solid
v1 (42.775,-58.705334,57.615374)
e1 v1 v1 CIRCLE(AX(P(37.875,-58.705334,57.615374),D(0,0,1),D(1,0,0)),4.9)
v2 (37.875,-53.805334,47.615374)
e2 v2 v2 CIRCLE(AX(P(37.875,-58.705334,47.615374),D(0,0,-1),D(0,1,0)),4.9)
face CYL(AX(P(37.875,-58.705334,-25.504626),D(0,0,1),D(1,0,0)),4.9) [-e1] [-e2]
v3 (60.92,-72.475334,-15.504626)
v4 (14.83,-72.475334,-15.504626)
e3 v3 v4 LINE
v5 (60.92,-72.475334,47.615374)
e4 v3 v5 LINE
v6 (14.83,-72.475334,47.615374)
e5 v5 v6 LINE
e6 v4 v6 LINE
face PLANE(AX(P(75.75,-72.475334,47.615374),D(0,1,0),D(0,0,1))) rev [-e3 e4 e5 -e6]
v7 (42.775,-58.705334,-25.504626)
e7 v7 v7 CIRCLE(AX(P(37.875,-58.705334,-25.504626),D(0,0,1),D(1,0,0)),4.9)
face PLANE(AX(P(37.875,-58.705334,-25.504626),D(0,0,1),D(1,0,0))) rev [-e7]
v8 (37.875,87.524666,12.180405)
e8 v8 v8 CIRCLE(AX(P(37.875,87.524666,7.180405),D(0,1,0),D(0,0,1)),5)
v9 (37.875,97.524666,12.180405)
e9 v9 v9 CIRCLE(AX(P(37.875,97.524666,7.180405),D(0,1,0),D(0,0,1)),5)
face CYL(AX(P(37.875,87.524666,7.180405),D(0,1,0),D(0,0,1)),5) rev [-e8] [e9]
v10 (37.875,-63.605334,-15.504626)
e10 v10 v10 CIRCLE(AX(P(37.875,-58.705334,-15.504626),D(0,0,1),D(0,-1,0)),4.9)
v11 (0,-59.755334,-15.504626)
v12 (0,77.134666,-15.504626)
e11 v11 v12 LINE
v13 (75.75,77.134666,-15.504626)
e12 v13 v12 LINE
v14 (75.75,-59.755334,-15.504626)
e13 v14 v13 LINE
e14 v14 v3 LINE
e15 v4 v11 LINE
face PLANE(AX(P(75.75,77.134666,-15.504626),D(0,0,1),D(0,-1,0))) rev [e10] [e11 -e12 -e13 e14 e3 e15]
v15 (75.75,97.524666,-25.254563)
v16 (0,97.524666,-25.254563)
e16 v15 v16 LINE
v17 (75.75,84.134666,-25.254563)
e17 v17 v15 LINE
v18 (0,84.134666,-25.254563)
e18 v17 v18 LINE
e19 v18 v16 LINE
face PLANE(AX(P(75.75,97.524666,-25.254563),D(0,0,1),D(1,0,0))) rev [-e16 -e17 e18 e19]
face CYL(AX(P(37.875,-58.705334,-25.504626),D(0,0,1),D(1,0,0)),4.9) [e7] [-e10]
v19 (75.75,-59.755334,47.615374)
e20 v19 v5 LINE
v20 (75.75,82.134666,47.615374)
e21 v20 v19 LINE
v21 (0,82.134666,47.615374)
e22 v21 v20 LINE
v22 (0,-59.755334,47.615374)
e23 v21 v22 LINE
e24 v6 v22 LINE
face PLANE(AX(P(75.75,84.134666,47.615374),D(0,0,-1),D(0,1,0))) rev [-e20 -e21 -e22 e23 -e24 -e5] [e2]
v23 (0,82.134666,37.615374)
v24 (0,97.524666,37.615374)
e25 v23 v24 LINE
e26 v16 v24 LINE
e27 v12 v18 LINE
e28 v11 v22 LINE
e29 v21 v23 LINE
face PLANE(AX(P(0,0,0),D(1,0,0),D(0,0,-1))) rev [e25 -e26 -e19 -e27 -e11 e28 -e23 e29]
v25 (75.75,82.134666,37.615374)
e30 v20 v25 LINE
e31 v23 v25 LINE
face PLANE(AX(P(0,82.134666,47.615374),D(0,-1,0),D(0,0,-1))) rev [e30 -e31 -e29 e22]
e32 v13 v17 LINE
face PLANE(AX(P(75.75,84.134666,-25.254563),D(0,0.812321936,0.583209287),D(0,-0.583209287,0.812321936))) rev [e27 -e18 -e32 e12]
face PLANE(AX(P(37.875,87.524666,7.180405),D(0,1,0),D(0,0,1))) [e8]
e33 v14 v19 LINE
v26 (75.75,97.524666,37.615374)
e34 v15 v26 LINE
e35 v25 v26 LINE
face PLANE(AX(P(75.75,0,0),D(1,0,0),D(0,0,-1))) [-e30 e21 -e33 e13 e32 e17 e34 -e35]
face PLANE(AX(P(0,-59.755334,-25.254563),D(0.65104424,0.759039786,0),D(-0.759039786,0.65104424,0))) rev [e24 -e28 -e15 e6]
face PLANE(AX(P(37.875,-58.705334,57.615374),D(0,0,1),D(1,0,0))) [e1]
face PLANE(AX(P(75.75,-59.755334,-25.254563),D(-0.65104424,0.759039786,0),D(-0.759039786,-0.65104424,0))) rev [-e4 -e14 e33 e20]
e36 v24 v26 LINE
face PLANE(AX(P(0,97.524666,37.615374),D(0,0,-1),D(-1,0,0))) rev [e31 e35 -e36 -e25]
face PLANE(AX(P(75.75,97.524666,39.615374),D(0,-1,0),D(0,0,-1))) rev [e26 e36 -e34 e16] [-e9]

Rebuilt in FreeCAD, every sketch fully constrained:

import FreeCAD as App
import Part
import Sketcher

V = App.Vector


def add_polygon(sketch, points):
    """Adds a closed chain of lines whose ends are joined by coincident constraints."""
    first, n = sketch.GeometryCount, len(points)
    for a, b in zip(points, points[1:] + points[:1]):
        sketch.addGeometry(Part.LineSegment(App.Vector(*a, 0), App.Vector(*b, 0)), False)
    for i in range(n):
        sketch.addConstraint(Sketcher.Constraint("Coincident", first + i, 2, first + (i + 1) % n, 1))

doc = App.newDocument("Part")
body = doc.addObject("PartDesign::Body", "Body")

sketch1 = body.newObject("Sketcher::SketchObject", "Sketch")
sketch1.AttachmentSupport = (doc.getObject("YZ_Plane"), [""])
sketch1.MapMode = "FlatFace"
add_polygon(sketch1, [(97.524666, -25.254563), (97.524666, 39.615374), (84.134666, 39.615374), (84.134666, 47.615374), (-72.475334, 47.615374), (-72.475334, -15.504626), (77.134666, -15.504626), (84.134666, -25.254563)])
sketch1.addConstraint(Sketcher.Constraint("Vertical", 0))
sketch1.addConstraint(Sketcher.Constraint("Horizontal", 1))
sketch1.addConstraint(Sketcher.Constraint("Vertical", 2))
sketch1.addConstraint(Sketcher.Constraint("Horizontal", 3))
sketch1.addConstraint(Sketcher.Constraint("Vertical", 4))
sketch1.addConstraint(Sketcher.Constraint("Horizontal", 5))
sketch1.addConstraint(Sketcher.Constraint("Horizontal", 7))
sketch1.addConstraint(Sketcher.Constraint("Vertical", 2, 2, 6, 2))
sketch1.addConstraint(Sketcher.Constraint("DistanceY", 2, 1, 2, 2, 8.0))
sketch1.addConstraint(Sketcher.Constraint("DistanceX", 3, 2, 0, 2, 170.0))
sketch1.addConstraint(Sketcher.Constraint("DistanceX", 5, 2, 1, 2, 7.0))
sketch1.addConstraint(Sketcher.Constraint("DistanceX", 1, 2, 1, 1, 13.39))
sketch1.addConstraint(Sketcher.Constraint("DistanceY", 4, 2, 4, 1, 63.12))
sketch1.addConstraint(Sketcher.Constraint("DistanceY", 0, 1, 0, 2, 64.869937))
sketch1.addConstraint(Sketcher.Constraint("DistanceX", -1, 1, 0, 2, 97.524666))
sketch1.addConstraint(Sketcher.Constraint("DistanceY", -1, 1, 0, 2, 39.615374))
pad1 = body.newObject("PartDesign::Pad", "Pad")
pad1.Profile = sketch1
pad1.Length = 75.75

sketch2 = body.newObject("Sketcher::SketchObject", "Sketch001")
sketch2.AttachmentSupport = (doc.getObject("XY_Plane"), [""])
sketch2.MapMode = "FlatFace"
sketch2.AttachmentOffset = App.Placement(V(0, 0, 47.615374), App.Rotation())
add_polygon(sketch2, [(14.83, -72.475334), (0, -59.755334), (0, -72.475334)])
add_polygon(sketch2, [(75.75, -59.755334), (60.92, -72.475334), (75.75, -72.475334)])
sketch2.addConstraint(Sketcher.Constraint("Vertical", 1))
sketch2.addConstraint(Sketcher.Constraint("Horizontal", 2))
sketch2.addConstraint(Sketcher.Constraint("Horizontal", 4))
sketch2.addConstraint(Sketcher.Constraint("Vertical", 5))
sketch2.addConstraint(Sketcher.Constraint("PointOnObject", 0, 2, -2))
sketch2.addConstraint(Sketcher.Constraint("Horizontal", 2, 2, 3, 2))
sketch2.addConstraint(Sketcher.Constraint("Horizontal", 0, 2, 5, 2))
sketch2.addConstraint(Sketcher.Constraint("Equal", 2, 4))
sketch2.addConstraint(Sketcher.Constraint("DistanceX", 2, 1, 2, 2, 14.83))
sketch2.addConstraint(Sketcher.Constraint("DistanceY", 1, 2, 1, 1, 12.72))
sketch2.addConstraint(Sketcher.Constraint("DistanceX", -1, 1, 3, 2, 60.92))
sketch2.addConstraint(Sketcher.Constraint("DistanceY", 0, 2, -1, 1, 59.755334))
pocket1 = body.newObject("PartDesign::Pocket", "Pocket")
pocket1.Profile = sketch2
pocket1.Type = "ThroughAll"

sketch3 = body.newObject("Sketcher::SketchObject", "Sketch002")
sketch3.AttachmentSupport = (doc.getObject("XY_Plane"), [""])
sketch3.MapMode = "FlatFace"
sketch3.AttachmentOffset = App.Placement(V(0, 0, 47.615374), App.Rotation())
sketch3.addGeometry(Part.Circle(V(37.875, -58.705334, 0), V(0, 0, 1), 4.9), False)
sketch3.addConstraint(Sketcher.Constraint("Diameter", 0, 9.8))
sketch3.addConstraint(Sketcher.Constraint("DistanceX", -1, 1, 0, 3, 37.875))
sketch3.addConstraint(Sketcher.Constraint("DistanceY", 0, 3, -1, 1, 58.705334))
pad2 = body.newObject("PartDesign::Pad", "Pad001")
pad2.Profile = sketch3
pad2.Type = "TwoLengths"
pad2.Length = 10
pad2.Length2 = 73.12

sketch4 = body.newObject("Sketcher::SketchObject", "Sketch003")
sketch4.AttachmentSupport = (doc.getObject("XZ_Plane"), [""])
sketch4.MapMode = "FlatFace"
sketch4.AttachmentOffset = App.Placement(V(0, 0, -97.524666), App.Rotation())
sketch4.addGeometry(Part.Circle(V(37.875, 7.180405, 0), V(0, 0, 1), 5), False)
sketch4.addConstraint(Sketcher.Constraint("Diameter", 0, 10.0))
sketch4.addConstraint(Sketcher.Constraint("DistanceX", -1, 1, 0, 3, 37.875))
sketch4.addConstraint(Sketcher.Constraint("DistanceY", -1, 1, 0, 3, 7.180405))
pocket2 = body.newObject("PartDesign::Pocket", "Pocket001")
pocket2.Profile = sketch4
pocket2.Length = 10
pocket2.Reversed = True

sketch5 = body.newObject("Sketcher::SketchObject", "Sketch004")
sketch5.AttachmentSupport = (doc.getObject("YZ_Plane"), [""])
sketch5.MapMode = "FlatFace"
sketch5.AttachmentOffset = App.Placement(V(0, 0, 75.75), App.Rotation())
add_polygon(sketch5, [(97.524666, 39.615374), (84.134666, 39.615374), (84.134666, 37.615374), (97.524666, 37.615374)])
sketch5.addConstraint(Sketcher.Constraint("Horizontal", 0))
sketch5.addConstraint(Sketcher.Constraint("Vertical", 1))
sketch5.addConstraint(Sketcher.Constraint("Horizontal", 2))
sketch5.addConstraint(Sketcher.Constraint("Vertical", 3))
sketch5.addConstraint(Sketcher.Constraint("DistanceY", 1, 2, 1, 1, 2.0))
sketch5.addConstraint(Sketcher.Constraint("DistanceX", 0, 2, 0, 1, 13.39))
sketch5.addConstraint(Sketcher.Constraint("DistanceX", -1, 1, 0, 2, 84.134666))
sketch5.addConstraint(Sketcher.Constraint("DistanceY", -1, 1, 0, 2, 39.615374))
pocket3 = body.newObject("PartDesign::Pocket", "Pocket002")
pocket3.Profile = sketch5
pocket3.Type = "ThroughAll"

sketch6 = body.newObject("Sketcher::SketchObject", "Sketch005")
sketch6.AttachmentSupport = (doc.getObject("YZ_Plane"), [""])
sketch6.MapMode = "FlatFace"
sketch6.AttachmentOffset = App.Placement(V(0, 0, 75.75), App.Rotation())
add_polygon(sketch6, [(84.134666, 47.615374), (82.134666, 47.615374), (82.134666, 37.615374), (84.134666, 37.615374)])
sketch6.addConstraint(Sketcher.Constraint("Horizontal", 0))
sketch6.addConstraint(Sketcher.Constraint("Vertical", 1))
sketch6.addConstraint(Sketcher.Constraint("Horizontal", 2))
sketch6.addConstraint(Sketcher.Constraint("Vertical", 3))
sketch6.addConstraint(Sketcher.Constraint("DistanceX", 0, 2, 0, 1, 2.0))
sketch6.addConstraint(Sketcher.Constraint("DistanceY", 1, 2, 1, 1, 10.0))
sketch6.addConstraint(Sketcher.Constraint("DistanceX", -1, 1, 0, 2, 82.134666))
sketch6.addConstraint(Sketcher.Constraint("DistanceY", -1, 1, 0, 2, 47.615374))
pocket4 = body.newObject("PartDesign::Pocket", "Pocket003")
pocket4.Profile = sketch6
pocket4.Type = "ThroughAll"

doc.recompute()
